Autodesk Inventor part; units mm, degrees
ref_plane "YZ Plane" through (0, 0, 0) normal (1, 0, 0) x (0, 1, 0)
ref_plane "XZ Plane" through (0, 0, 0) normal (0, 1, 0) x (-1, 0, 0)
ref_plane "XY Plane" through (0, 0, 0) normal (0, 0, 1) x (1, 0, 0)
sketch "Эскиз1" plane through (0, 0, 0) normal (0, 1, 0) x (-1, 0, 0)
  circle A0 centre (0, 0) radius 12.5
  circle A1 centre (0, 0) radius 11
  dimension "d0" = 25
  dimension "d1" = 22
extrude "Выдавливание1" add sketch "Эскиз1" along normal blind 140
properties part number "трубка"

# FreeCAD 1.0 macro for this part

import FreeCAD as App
import Part
import Sketcher

V = App.Vector

doc = App.newDocument("Part")
body = doc.addObject("PartDesign::Body", "Body")

# Sketch on XZ plane
sketch1 = doc.addObject("Sketcher::SketchObject", "Sketch")
body.addObject(sketch1)
sketch1.AttachmentSupport = (doc.XZ_Plane, [""])
sketch1.MapMode = "FlatFace"
sketch1.addGeometry(Part.Circle(V(0, 0, 0), V(0, 0, 1), 12.5), False)
sketch1.addGeometry(Part.Circle(V(0, 0, 0), V(0, 0, 1), 11), False)
sketch1.addConstraint(Sketcher.Constraint("Coincident", 0, 3, -1, 1))
sketch1.addConstraint(Sketcher.Constraint("Coincident", 1, 3, -1, 1))
sketch1.addConstraint(Sketcher.Constraint("Diameter", 0, 25.0))
sketch1.addConstraint(Sketcher.Constraint("Diameter", 1, 22.0))
pad1 = doc.addObject("PartDesign::Pad", "Pad")
body.addObject(pad1)
pad1.Profile = sketch1
pad1.Length = 140
pad1.Reversed = True

doc.recompute()
